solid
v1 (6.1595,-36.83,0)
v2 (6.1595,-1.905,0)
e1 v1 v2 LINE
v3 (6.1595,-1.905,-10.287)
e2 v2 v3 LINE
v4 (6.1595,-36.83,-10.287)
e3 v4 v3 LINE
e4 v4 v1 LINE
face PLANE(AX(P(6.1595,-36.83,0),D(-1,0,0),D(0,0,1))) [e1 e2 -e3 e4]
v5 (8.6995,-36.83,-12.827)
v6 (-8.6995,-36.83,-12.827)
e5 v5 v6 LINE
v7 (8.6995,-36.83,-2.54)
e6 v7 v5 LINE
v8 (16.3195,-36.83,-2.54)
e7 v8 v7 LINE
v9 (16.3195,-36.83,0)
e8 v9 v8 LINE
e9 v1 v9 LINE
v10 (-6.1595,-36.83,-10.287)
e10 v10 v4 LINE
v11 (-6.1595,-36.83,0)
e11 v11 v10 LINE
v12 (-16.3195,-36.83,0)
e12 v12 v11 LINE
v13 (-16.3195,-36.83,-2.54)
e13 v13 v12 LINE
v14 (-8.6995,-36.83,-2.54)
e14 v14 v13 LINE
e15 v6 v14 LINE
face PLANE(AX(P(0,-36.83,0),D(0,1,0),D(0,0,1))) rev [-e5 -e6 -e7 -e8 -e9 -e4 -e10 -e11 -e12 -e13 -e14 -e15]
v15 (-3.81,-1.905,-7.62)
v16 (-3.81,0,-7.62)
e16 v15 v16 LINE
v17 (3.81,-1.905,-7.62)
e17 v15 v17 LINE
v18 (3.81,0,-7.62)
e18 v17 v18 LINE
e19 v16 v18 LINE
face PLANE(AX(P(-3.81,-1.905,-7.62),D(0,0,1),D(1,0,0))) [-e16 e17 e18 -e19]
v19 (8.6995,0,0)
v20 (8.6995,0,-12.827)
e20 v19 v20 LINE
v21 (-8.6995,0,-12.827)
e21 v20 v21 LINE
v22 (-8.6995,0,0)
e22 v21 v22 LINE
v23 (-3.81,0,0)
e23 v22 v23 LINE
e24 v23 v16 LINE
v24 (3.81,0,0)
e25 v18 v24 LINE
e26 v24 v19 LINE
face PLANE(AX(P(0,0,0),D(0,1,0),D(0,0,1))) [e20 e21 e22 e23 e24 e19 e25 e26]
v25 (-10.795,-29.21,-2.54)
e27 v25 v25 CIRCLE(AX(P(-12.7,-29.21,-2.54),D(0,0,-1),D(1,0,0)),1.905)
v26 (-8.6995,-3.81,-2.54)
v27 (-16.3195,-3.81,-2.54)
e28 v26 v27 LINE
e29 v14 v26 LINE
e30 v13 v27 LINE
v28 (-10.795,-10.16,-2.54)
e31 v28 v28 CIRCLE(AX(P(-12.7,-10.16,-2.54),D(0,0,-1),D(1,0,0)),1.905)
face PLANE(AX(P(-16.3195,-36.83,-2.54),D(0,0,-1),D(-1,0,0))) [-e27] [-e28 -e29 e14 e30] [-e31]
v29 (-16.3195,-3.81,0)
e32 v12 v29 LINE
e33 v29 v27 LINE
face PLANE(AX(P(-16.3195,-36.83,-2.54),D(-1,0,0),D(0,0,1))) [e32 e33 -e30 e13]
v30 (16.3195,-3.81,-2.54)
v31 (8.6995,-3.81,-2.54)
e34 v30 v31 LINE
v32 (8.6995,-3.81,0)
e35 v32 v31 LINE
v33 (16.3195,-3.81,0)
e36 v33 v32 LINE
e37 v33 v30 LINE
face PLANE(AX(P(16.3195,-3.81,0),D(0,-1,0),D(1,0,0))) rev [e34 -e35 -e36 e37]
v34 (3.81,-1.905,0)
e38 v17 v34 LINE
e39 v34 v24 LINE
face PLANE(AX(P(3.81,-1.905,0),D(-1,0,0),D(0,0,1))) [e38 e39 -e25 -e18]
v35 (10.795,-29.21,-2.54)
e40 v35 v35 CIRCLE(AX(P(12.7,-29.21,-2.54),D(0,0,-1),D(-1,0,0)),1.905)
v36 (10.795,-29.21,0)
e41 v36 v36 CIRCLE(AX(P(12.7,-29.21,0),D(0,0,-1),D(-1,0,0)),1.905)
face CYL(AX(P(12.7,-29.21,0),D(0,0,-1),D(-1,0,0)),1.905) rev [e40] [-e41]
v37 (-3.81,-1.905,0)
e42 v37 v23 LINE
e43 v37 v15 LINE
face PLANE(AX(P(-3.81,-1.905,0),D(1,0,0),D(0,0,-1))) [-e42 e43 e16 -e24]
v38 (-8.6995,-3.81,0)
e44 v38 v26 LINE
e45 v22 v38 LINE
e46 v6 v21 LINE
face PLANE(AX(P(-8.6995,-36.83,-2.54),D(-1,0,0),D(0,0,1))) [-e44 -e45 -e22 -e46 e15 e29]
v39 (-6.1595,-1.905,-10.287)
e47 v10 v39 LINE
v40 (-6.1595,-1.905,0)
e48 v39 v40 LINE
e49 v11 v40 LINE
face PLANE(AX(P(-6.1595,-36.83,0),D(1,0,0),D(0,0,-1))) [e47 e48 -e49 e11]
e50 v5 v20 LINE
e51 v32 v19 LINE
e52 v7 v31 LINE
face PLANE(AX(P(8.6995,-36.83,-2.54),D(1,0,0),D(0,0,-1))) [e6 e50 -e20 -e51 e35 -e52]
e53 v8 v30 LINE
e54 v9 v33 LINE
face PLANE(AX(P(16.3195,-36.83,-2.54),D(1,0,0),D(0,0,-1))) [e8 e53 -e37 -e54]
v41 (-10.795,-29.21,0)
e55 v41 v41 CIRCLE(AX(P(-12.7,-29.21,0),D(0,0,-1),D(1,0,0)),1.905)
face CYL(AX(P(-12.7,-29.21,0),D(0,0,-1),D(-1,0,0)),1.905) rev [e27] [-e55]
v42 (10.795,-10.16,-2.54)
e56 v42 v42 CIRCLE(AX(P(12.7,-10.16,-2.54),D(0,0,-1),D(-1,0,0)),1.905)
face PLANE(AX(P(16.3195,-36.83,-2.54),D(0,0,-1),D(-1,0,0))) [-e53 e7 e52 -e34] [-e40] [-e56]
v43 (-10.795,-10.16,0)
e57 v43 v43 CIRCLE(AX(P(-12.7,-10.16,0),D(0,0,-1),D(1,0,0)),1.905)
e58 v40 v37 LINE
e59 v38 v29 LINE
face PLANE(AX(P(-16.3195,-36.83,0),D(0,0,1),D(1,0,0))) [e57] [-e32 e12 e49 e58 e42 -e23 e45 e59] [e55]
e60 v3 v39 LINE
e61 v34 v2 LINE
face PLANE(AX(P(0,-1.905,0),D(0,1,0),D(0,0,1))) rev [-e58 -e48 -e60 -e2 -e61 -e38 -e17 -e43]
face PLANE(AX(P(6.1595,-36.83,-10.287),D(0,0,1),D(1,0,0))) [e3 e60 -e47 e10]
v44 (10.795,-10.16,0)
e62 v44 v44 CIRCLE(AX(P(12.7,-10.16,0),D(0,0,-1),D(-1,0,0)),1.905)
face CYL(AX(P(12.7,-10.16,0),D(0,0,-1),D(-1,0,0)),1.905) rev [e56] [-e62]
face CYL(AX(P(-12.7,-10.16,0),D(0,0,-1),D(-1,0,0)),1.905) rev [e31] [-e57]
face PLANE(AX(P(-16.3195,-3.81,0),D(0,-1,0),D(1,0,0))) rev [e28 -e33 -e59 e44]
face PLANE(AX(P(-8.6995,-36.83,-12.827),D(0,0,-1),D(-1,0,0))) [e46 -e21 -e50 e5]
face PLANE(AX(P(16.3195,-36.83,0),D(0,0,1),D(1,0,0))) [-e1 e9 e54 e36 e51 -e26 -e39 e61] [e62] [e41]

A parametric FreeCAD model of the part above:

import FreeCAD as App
import Part
import Sketcher

V = App.Vector
Q = App.Units.Quantity


def add_polygon(sketch, points):
    """Adds a closed chain of lines whose ends are joined by coincident constraints."""
    first, n = sketch.GeometryCount, len(points)
    for a, b in zip(points, points[1:] + points[:1]):
        sketch.addGeometry(Part.LineSegment(App.Vector(*a, 0), App.Vector(*b, 0)), False)
    for i in range(n):
        sketch.addConstraint(Sketcher.Constraint("Coincident", first + i, 2, first + (i + 1) % n, 1))

doc = App.newDocument("Part")
body = doc.addObject("PartDesign::Body", "Body")

# Sketch on XZ plane
sketch1 = doc.addObject("Sketcher::SketchObject", "Sketch")
body.addObject(sketch1)
sketch1.AttachmentSupport = (doc.XZ_Plane, [""])
sketch1.MapMode = "FlatFace"
add_polygon(sketch1, [(-16.3195, 0), (-6.1595, 0), (-6.1595, -10.287), (6.1595, -10.287), (6.1595, 0), (16.3195, 0), (16.3195, -2.54), (8.6995, -2.54), (8.6995, -12.827), (-8.6995, -12.827), (-8.6995, -2.54), (-16.3195, -2.54)])  # lines 0-11
sketch1.addConstraint([
    Sketcher.Constraint("Horizontal", 0),
    Sketcher.Constraint("Vertical", 1),
    Sketcher.Constraint("Horizontal", 2),
    Sketcher.Constraint("Vertical", 3),
    Sketcher.Constraint("Horizontal", 4),
    Sketcher.Constraint("Vertical", 5),
    Sketcher.Constraint("Horizontal", 6),
    Sketcher.Constraint("Vertical", 7),
    Sketcher.Constraint("Horizontal", 8),
    Sketcher.Constraint("Vertical", 9),
    Sketcher.Constraint("Horizontal", 10),
    Sketcher.Constraint("Vertical", 11),
    Sketcher.Constraint("Symmetric", 0, 2, 3, 2, -1, 1),
    Sketcher.Constraint("Symmetric", 6, 2, 9, 2, -2),
    Sketcher.Constraint("Symmetric", 4, 2, 11, 2, -2),
    Sketcher.Constraint("Equal", 3, 7),
    Sketcher.Constraint("DistanceX", 0, 1, 0, 2, Q("0.4 in")),
    Sketcher.Constraint("DistanceX", 6, 2, 6, 1, Q("0.3 in")),
    Sketcher.Constraint("DistanceY", 5, 2, 5, 1, Q("0.1 in")),
    Sketcher.Constraint("DistanceX", 2, 1, 2, 2, Q("0.485 in")),
    Sketcher.Constraint("DistanceY", 1, 2, 1, 1, Q("0.405 in")),
])
pad1 = doc.addObject("PartDesign::Pad", "Pad")
body.addObject(pad1)
pad1.Profile = sketch1
pad1.Length = Q("1.45 in")

# Sketch on XZ plane
sketch2 = doc.addObject("Sketcher::SketchObject", "Sketch001")
body.addObject(sketch2)
sketch2.AttachmentSupport = (doc.XZ_Plane, [""])
sketch2.MapMode = "FlatFace"
add_polygon(sketch2, [(8.6995, -12.827), (-8.6995, -12.827), (-8.6995, 0), (-3.81, 0), (-3.81, -7.62), (3.81, -7.62), (3.81, 0), (8.6995, 0)])  # lines 0-7
sketch2.addConstraint([
    Sketcher.Constraint("Horizontal", 0),
    Sketcher.Constraint("Vertical", 1),
    Sketcher.Constraint("Horizontal", 2),
    Sketcher.Constraint("Vertical", 3),
    Sketcher.Constraint("Horizontal", 4),
    Sketcher.Constraint("Vertical", 5),
    Sketcher.Constraint("Horizontal", 6),
    Sketcher.Constraint("Vertical", 7),
    Sketcher.Constraint("Symmetric", 2, 2, 5, 2, -1, 1),
    Sketcher.Constraint("Symmetric", 1, 2, 6, 2, -2),
    Sketcher.Constraint("Equal", 4, 3),
    Sketcher.Constraint("DistanceX", 4, 1, 4, 2, Q("0.3 in")),
    Sketcher.Constraint("DistanceX", 0, 2, 0, 1, Q("0.685 in")),
    Sketcher.Constraint("DistanceY", 1, 1, 1, 2, Q("0.505 in")),
])
pad2 = doc.addObject("PartDesign::Pad", "Pad001")
body.addObject(pad2)
pad2.Profile = sketch2
pad2.Length = Q("0.075 in")

# Sketch on XY plane
sketch3 = doc.addObject("Sketcher::SketchObject", "Sketch002")
body.addObject(sketch3)
sketch3.AttachmentSupport = (doc.XY_Plane, [""])
sketch3.MapMode = "FlatFace"
sketch3.AttachmentOffset = App.Placement(V(0, 0, -0.1 * 25.4), App.Rotation())
sketch3.addGeometry([
    Part.Circle(V(12.7, -10.16, 0), V(0, 0, 1), 1.905),
    Part.Circle(V(12.7, -29.21, 0), V(0, 0, 1), 1.905),
    Part.Circle(V(-12.7, -29.21, 0), V(0, 0, 1), 1.905),
    Part.Circle(V(-12.7, -10.16, 0), V(0, 0, 1), 1.905),
], False)
sketch3.addConstraint([
    Sketcher.Constraint("Equal", 0, 1),
    Sketcher.Constraint("Equal", 1, 2),
    Sketcher.Constraint("Equal", 2, 3),
    Sketcher.Constraint("Symmetric", 1, 3, 2, 3, -2),
    Sketcher.Constraint("Symmetric", 0, 3, 3, 3, -2),
    Sketcher.Constraint("Vertical", 0, 3, 1, 3),
    Sketcher.Constraint("Diameter", 0, Q("0.15 in")),
    Sketcher.Constraint("DistanceX", 2, 3, 1, 3, Q("1 in")),
    Sketcher.Constraint("DistanceY", 0, 3, -1, 1, Q("0.4 in")),
    Sketcher.Constraint("DistanceY", 1, 3, -1, 1, Q("1.15 in")),
])
pocket1 = doc.addObject("PartDesign::Pocket", "Pocket")
body.addObject(pocket1)
pocket1.Profile = sketch3
pocket1.Length = Q("0.1 in")
pocket1.Reversed = True

# Sketch on XY plane
sketch4 = doc.addObject("Sketcher::SketchObject", "Sketch003")
body.addObject(sketch4)
sketch4.AttachmentSupport = (doc.XY_Plane, [""])
sketch4.MapMode = "FlatFace"
sketch4.AttachmentOffset = App.Placement(V(0, 0, -0.1 * 25.4), App.Rotation())
add_polygon(sketch4, [(16.3195, 0), (16.3195, -3.81), (8.6995, -3.81), (8.6995, 0)])  # lines 0-3
add_polygon(sketch4, [(-8.6995, 0), (-8.6995, -3.81), (-16.3195, -3.81), (-16.3195, 0)])  # lines 4-7
sketch4.addConstraint([
    Sketcher.Constraint("Vertical", 0),
    Sketcher.Constraint("Horizontal", 1),
    Sketcher.Constraint("Vertical", 2),
    Sketcher.Constraint("Horizontal", 3),
    Sketcher.Constraint("Vertical", 4),
    Sketcher.Constraint("Horizontal", 5),
    Sketcher.Constraint("Vertical", 6),
    Sketcher.Constraint("Horizontal", 7),
    Sketcher.Constraint("Symmetric", 3, 2, 6, 2, -1, 1),
    Sketcher.Constraint("Symmetric", 1, 2, 4, 2, -2),
    Sketcher.Constraint("PointOnObject", 2, 2, -1),
    Sketcher.Constraint("DistanceX", 1, 2, 1, 1, Q("0.3 in")),
    Sketcher.Constraint("DistanceY", 0, 2, 0, 1, Q("0.15 in")),
    Sketcher.Constraint("DistanceX", 4, 2, 1, 2, Q("0.685 in")),
])
pocket2 = doc.addObject("PartDesign::Pocket", "Pocket001")
body.addObject(pocket2)
pocket2.Profile = sketch4
pocket2.Type = "ThroughAll"
pocket2.Reversed = True

doc.recompute()
